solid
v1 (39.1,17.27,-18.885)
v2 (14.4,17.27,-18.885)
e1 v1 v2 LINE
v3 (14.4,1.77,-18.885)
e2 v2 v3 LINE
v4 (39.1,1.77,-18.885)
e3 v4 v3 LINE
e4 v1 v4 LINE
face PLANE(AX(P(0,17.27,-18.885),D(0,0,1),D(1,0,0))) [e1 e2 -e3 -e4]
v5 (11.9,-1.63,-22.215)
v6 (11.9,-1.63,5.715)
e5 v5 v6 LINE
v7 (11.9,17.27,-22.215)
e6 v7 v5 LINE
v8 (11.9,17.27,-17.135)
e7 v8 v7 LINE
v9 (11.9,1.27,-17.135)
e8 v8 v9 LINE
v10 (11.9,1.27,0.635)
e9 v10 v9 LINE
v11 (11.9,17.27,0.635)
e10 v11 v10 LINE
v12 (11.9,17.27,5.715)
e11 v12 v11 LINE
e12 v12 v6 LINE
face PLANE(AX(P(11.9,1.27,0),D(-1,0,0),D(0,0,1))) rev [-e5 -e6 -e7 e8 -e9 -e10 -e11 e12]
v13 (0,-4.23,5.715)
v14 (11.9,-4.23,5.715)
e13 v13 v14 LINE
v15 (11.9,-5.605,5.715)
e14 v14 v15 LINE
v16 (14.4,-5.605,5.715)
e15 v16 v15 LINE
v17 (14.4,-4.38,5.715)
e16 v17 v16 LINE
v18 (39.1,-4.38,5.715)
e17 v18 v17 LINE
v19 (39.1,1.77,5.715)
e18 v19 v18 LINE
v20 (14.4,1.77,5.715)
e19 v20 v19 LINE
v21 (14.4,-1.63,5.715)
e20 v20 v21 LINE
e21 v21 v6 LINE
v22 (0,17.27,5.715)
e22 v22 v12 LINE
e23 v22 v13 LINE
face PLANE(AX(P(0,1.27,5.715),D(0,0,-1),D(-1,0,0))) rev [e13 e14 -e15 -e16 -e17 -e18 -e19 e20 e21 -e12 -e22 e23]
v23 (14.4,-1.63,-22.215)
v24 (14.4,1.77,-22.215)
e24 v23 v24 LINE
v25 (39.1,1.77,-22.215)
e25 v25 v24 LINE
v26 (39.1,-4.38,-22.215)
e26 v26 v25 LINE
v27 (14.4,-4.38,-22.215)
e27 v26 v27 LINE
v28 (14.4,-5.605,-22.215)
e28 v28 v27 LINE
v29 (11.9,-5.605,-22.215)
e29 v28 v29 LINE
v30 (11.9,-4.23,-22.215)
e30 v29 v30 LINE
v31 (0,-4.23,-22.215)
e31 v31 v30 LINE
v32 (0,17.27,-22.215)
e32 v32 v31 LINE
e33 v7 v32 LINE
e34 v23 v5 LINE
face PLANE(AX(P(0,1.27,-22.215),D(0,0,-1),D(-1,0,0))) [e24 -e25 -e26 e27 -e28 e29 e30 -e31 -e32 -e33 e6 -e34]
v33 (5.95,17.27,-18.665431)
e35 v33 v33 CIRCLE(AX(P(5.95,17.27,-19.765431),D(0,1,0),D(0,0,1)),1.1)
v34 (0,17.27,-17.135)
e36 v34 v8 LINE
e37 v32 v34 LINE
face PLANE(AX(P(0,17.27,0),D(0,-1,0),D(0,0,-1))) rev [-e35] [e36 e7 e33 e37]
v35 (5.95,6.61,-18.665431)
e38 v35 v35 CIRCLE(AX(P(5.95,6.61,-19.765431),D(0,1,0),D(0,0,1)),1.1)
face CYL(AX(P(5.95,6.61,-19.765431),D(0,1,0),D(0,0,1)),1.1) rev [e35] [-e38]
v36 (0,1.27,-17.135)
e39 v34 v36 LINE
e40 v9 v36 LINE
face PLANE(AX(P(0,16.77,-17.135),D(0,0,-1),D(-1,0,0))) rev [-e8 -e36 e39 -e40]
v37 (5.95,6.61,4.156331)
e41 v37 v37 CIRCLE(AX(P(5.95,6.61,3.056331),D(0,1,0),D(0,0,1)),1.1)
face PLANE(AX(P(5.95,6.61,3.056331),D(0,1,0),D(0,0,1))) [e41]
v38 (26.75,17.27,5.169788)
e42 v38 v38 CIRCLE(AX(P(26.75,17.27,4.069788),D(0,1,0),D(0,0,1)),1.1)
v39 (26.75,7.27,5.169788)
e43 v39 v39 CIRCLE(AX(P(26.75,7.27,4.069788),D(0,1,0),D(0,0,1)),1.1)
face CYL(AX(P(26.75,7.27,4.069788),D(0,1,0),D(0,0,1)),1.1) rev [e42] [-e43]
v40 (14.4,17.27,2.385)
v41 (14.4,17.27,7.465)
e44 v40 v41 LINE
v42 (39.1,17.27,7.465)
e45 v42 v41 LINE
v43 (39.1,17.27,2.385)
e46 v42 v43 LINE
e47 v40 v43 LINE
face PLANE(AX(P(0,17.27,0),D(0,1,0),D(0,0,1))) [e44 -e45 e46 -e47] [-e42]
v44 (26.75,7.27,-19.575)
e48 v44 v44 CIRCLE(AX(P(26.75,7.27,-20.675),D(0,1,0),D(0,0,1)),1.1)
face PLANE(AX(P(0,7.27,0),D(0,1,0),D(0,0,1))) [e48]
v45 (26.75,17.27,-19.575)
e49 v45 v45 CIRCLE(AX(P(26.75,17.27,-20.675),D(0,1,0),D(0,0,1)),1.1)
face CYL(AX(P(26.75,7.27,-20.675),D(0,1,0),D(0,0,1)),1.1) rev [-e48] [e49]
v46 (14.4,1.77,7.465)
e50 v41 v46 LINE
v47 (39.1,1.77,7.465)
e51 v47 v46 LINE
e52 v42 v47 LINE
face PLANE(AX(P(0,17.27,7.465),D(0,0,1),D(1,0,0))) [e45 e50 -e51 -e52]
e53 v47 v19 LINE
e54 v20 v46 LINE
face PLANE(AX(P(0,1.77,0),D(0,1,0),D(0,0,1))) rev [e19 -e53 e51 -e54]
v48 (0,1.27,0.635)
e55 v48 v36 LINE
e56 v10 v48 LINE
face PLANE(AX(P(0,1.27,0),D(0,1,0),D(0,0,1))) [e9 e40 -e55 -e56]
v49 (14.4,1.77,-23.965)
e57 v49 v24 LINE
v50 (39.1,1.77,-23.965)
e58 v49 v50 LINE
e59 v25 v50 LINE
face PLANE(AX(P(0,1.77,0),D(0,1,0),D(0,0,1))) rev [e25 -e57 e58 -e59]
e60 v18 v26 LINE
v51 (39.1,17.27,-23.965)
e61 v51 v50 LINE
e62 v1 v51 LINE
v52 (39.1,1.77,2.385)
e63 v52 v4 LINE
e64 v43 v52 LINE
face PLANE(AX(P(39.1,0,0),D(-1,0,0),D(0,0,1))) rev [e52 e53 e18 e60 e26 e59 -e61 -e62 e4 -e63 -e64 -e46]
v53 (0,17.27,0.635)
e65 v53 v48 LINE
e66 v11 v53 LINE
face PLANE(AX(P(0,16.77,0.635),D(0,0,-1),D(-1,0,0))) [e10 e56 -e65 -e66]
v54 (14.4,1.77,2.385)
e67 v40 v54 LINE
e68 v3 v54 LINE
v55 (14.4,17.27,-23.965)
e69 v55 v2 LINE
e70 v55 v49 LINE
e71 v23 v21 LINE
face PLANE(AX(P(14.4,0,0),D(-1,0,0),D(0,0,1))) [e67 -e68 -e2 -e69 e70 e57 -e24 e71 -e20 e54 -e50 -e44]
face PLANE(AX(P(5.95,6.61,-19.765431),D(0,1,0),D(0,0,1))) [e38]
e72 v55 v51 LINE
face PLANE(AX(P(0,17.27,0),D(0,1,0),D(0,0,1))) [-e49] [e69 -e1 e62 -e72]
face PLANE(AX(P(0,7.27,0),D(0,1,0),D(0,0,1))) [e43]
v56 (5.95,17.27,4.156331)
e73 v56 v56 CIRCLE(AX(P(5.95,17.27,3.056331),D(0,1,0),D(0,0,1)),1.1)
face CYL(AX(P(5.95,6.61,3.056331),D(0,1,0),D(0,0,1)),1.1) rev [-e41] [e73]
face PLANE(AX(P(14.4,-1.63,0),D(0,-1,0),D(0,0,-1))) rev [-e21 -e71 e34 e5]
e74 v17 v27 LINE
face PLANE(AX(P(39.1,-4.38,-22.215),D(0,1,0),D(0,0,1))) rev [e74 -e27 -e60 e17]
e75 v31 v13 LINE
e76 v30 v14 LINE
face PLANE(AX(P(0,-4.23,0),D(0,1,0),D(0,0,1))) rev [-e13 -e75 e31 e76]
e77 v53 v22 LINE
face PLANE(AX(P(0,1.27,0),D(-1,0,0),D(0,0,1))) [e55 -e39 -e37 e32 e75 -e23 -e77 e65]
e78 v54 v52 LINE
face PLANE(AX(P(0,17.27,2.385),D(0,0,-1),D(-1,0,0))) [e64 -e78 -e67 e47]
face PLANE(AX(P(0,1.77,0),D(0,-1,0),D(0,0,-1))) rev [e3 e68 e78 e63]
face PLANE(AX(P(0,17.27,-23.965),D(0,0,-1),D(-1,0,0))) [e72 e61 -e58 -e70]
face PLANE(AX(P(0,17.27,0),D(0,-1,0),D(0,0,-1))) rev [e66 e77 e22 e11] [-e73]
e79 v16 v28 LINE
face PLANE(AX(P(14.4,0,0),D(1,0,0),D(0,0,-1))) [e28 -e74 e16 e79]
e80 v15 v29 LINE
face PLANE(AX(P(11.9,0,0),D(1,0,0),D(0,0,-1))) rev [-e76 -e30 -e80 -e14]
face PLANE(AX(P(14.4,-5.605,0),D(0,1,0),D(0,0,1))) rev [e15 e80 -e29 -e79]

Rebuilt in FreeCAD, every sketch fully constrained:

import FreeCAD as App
import Part
import Sketcher

V = App.Vector
Q = App.Units.Quantity

doc = App.newDocument("Part")
body = doc.addObject("PartDesign::Body", "Body")

sketch1 = doc.addObject("Sketcher::SketchObject", "Sketch")
body.addObject(sketch1)
sketch1.AttachmentSupport = (doc.XZ_Plane, [""])
sketch1.MapMode = "FlatFace"
sketch1.addGeometry(Part.LineSegment(V(0, -22.215, 0), V(0, 5.715, 0)), False)
sketch1.addGeometry(Part.LineSegment(V(0, 5.715, 0), V(11.9, 5.715, 0)), False)
sketch1.addGeometry(Part.LineSegment(V(11.9, 5.715, 0), V(11.9, -22.215, 0)), False)
sketch1.addGeometry(Part.LineSegment(V(11.9, -22.215, 0), V(0, -22.215, 0)), False)
sketch1.addConstraint(Sketcher.Constraint("Coincident", 0, 2, 1, 1))
sketch1.addConstraint(Sketcher.Constraint("Coincident", 1, 2, 2, 1))
sketch1.addConstraint(Sketcher.Constraint("Coincident", 2, 2, 3, 1))
sketch1.addConstraint(Sketcher.Constraint("Coincident", 3, 2, 0, 1))
sketch1.addConstraint(Sketcher.Constraint("Vertical", 0))
sketch1.addConstraint(Sketcher.Constraint("Horizontal", 1))
sketch1.addConstraint(Sketcher.Constraint("Vertical", 2))
sketch1.addConstraint(Sketcher.Constraint("Horizontal", 3))
sketch1.addConstraint(Sketcher.Constraint("PointOnObject", 0, 2, -2))
sketch1.addConstraint(Sketcher.Constraint("DistanceX", 1, 1, 1, 2, Q("11.9 mm")))
sketch1.addConstraint(Sketcher.Constraint("DistanceY", 0, 1, 0, 2, Q("27.93 mm")))
sketch1.addConstraint(Sketcher.Constraint("DistanceY", -1, 1, 0, 2, Q("5.715 mm")))
pad1 = doc.addObject("PartDesign::Pad", "Pad")
body.addObject(pad1)
pad1.Profile = sketch1
pad1.Length = 1.27
pad1.Reversed = True

sketch2 = doc.addObject("Sketcher::SketchObject", "Sketch001")
body.addObject(sketch2)
sketch2.AttachmentSupport = (doc.XZ_Plane, [""])
sketch2.MapMode = "FlatFace"
sketch2.addGeometry(Part.LineSegment(V(0, 0.635, 0), V(0, 5.715, 0)), False)
sketch2.addGeometry(Part.LineSegment(V(0, 5.715, 0), V(11.9, 5.715, 0)), False)
sketch2.addGeometry(Part.LineSegment(V(11.9, 5.715, 0), V(11.9, 0.635, 0)), False)
sketch2.addGeometry(Part.LineSegment(V(11.9, 0.635, 0), V(0, 0.635, 0)), False)
sketch2.addGeometry(Part.LineSegment(V(0, -22.215, 0), V(0, -17.135, 0)), False)
sketch2.addGeometry(Part.LineSegment(V(0, -17.135, 0), V(11.9, -17.135, 0)), False)
sketch2.addGeometry(Part.LineSegment(V(11.9, -17.135, 0), V(11.9, -22.215, 0)), False)
sketch2.addGeometry(Part.LineSegment(V(11.9, -22.215, 0), V(0, -22.215, 0)), False)
sketch2.addConstraint(Sketcher.Constraint("Coincident", 0, 2, 1, 1))
sketch2.addConstraint(Sketcher.Constraint("Coincident", 1, 2, 2, 1))
sketch2.addConstraint(Sketcher.Constraint("Coincident", 2, 2, 3, 1))
sketch2.addConstraint(Sketcher.Constraint("Coincident", 3, 2, 0, 1))
sketch2.addConstraint(Sketcher.Constraint("Coincident", 4, 2, 5, 1))
sketch2.addConstraint(Sketcher.Constraint("Coincident", 5, 2, 6, 1))
sketch2.addConstraint(Sketcher.Constraint("Coincident", 6, 2, 7, 1))
sketch2.addConstraint(Sketcher.Constraint("Coincident", 7, 2, 4, 1))
sketch2.addConstraint(Sketcher.Constraint("Vertical", 0))
sketch2.addConstraint(Sketcher.Constraint("Horizontal", 1))
sketch2.addConstraint(Sketcher.Constraint("Vertical", 2))
sketch2.addConstraint(Sketcher.Constraint("Horizontal", 3))
sketch2.addConstraint(Sketcher.Constraint("Vertical", 4))
sketch2.addConstraint(Sketcher.Constraint("Horizontal", 5))
sketch2.addConstraint(Sketcher.Constraint("Vertical", 6))
sketch2.addConstraint(Sketcher.Constraint("Horizontal", 7))
sketch2.addConstraint(Sketcher.Constraint("PointOnObject", 0, 2, -2))
sketch2.addConstraint(Sketcher.Constraint("PointOnObject", 4, 2, -2))
sketch2.addConstraint(Sketcher.Constraint("Vertical", 2, 2, 5, 2))
sketch2.addConstraint(Sketcher.Constraint("Equal", 2, 4))
sketch2.addConstraint(Sketcher.Constraint("DistanceX", 1, 1, 1, 2, Q("11.9 mm")))
sketch2.addConstraint(Sketcher.Constraint("DistanceY", 0, 1, 0, 2, Q("5.08 mm")))
sketch2.addConstraint(Sketcher.Constraint("DistanceY", 4, 2, 3, 2, Q("17.77 mm")))
sketch2.addConstraint(Sketcher.Constraint("DistanceY", -1, 1, 0, 2, Q("5.715 mm")))
pad2 = doc.addObject("PartDesign::Pad", "Pad001")
body.addObject(pad2)
pad2.Profile = sketch2
pad2.Length = 16.77
pad2.Reversed = True

sketch3 = doc.addObject("Sketcher::SketchObject", "Sketch002")
body.addObject(sketch3)
sketch3.AttachmentSupport = (doc.XZ_Plane, [""])
sketch3.MapMode = "FlatFace"
sketch3.AttachmentOffset = App.Placement(V(0, 0, -16.77), App.Rotation())
sketch3.addGeometry(Part.Circle(V(5.95, -19.765431, 0), V(0, 0, 1), 1.1), False)
sketch3.addConstraint(Sketcher.Constraint("Diameter", 0, Q("2.2 mm")))
sketch3.addConstraint(Sketcher.Constraint("DistanceX", -1, 1, 0, 3, Q("5.95 mm")))
sketch3.addConstraint(Sketcher.Constraint("DistanceY", 0, 3, -1, 1, Q("19.765431 mm")))
pocket1 = doc.addObject("PartDesign::Pocket", "Pocket")
body.addObject(pocket1)
pocket1.Profile = sketch3
pocket1.Length = 10.16
pocket1.Reversed = True

sketch4 = doc.addObject("Sketcher::SketchObject", "Sketch003")
body.addObject(sketch4)
sketch4.AttachmentSupport = (doc.XZ_Plane, [""])
sketch4.MapMode = "FlatFace"
sketch4.AttachmentOffset = App.Placement(V(0, 0, -16.77), App.Rotation())
sketch4.addGeometry(Part.Circle(V(5.95, 3.056331, 0), V(0, 0, 1), 1.1), False)
sketch4.addConstraint(Sketcher.Constraint("Diameter", 0, Q("2.2 mm")))
sketch4.addConstraint(Sketcher.Constraint("DistanceX", -1, 1, 0, 3, Q("5.95 mm")))
sketch4.addConstraint(Sketcher.Constraint("DistanceY", -1, 1, 0, 3, Q("3.056331 mm")))
pocket2 = doc.addObject("PartDesign::Pocket", "Pocket001")
body.addObject(pocket2)
pocket2.Profile = sketch4
pocket2.Length = 10.16
pocket2.Reversed = True

sketch5 = doc.addObject("Sketcher::SketchObject", "Sketch004")
body.addObject(sketch5)
sketch5.AttachmentSupport = (doc.YZ_Plane, [""])
sketch5.MapMode = "FlatFace"
sketch5.AttachmentOffset = App.Placement(V(0, 0, 11.9), App.Rotation())
sketch5.addGeometry(Part.LineSegment(V(-1.48, -22.215, 0), V(0, -22.215, 0)), False)
sketch5.addGeometry(Part.LineSegment(V(0, -22.215, 0), V(0, 5.715, 0)), False)
sketch5.addGeometry(Part.LineSegment(V(0, 5.715, 0), V(-1.48, 5.715, 0)), False)
sketch5.addGeometry(Part.LineSegment(V(-1.48, 5.715, 0), V(-1.48, -22.215, 0)), False)
sketch5.addConstraint(Sketcher.Constraint("Coincident", 0, 2, 1, 1))
sketch5.addConstraint(Sketcher.Constraint("Coincident", 1, 2, 2, 1))
sketch5.addConstraint(Sketcher.Constraint("Coincident", 2, 2, 3, 1))
sketch5.addConstraint(Sketcher.Constraint("Coincident", 3, 2, 0, 1))
sketch5.addConstraint(Sketcher.Constraint("Horizontal", 0))
sketch5.addConstraint(Sketcher.Constraint("Vertical", 1))
sketch5.addConstraint(Sketcher.Constraint("Horizontal", 2))
sketch5.addConstraint(Sketcher.Constraint("Vertical", 3))
sketch5.addConstraint(Sketcher.Constraint("PointOnObject", 0, 2, -2))
sketch5.addConstraint(Sketcher.Constraint("DistanceX", 0, 1, 0, 2, Q("1.48 mm")))
sketch5.addConstraint(Sketcher.Constraint("DistanceY", 1, 1, 1, 2, Q("27.93 mm")))
sketch5.addConstraint(Sketcher.Constraint("DistanceY", 0, 2, -1, 1, Q("22.215 mm")))
pad3 = doc.addObject("PartDesign::Pad", "Pad002")
body.addObject(pad3)
pad3.Profile = sketch5
pad3.Length = 11.9
pad3.Reversed = True

sketch6 = doc.addObject("Sketcher::SketchObject", "Sketch005")
body.addObject(sketch6)
sketch6.AttachmentSupport = (doc.YZ_Plane, [""])
sketch6.MapMode = "FlatFace"
sketch6.AttachmentOffset = App.Placement(V(0, 0, 11.9), App.Rotation())
sketch6.addGeometry(Part.LineSegment(V(-4.23, -22.215, 0), V(-1.48, -22.215, 0)), False)
sketch6.addGeometry(Part.LineSegment(V(-1.48, -22.215, 0), V(-1.48, 5.715, 0)), False)
sketch6.addGeometry(Part.LineSegment(V(-1.48, 5.715, 0), V(-4.23, 5.715, 0)), False)
sketch6.addGeometry(Part.LineSegment(V(-4.23, 5.715, 0), V(-4.23, -22.215, 0)), False)
sketch6.addConstraint(Sketcher.Constraint("Coincident", 0, 2, 1, 1))
sketch6.addConstraint(Sketcher.Constraint("Coincident", 1, 2, 2, 1))
sketch6.addConstraint(Sketcher.Constraint("Coincident", 2, 2, 3, 1))
sketch6.addConstraint(Sketcher.Constraint("Coincident", 3, 2, 0, 1))
sketch6.addConstraint(Sketcher.Constraint("Horizontal", 0))
sketch6.addConstraint(Sketcher.Constraint("Vertical", 1))
sketch6.addConstraint(Sketcher.Constraint("Horizontal", 2))
sketch6.addConstraint(Sketcher.Constraint("Vertical", 3))
sketch6.addConstraint(Sketcher.Constraint("DistanceX", 0, 1, 0, 2, Q("2.75 mm")))
sketch6.addConstraint(Sketcher.Constraint("DistanceY", 1, 1, 1, 2, Q("27.93 mm")))
sketch6.addConstraint(Sketcher.Constraint("DistanceX", 0, 2, -1, 1, Q("1.48 mm")))
sketch6.addConstraint(Sketcher.Constraint("DistanceY", 0, 2, -1, 1, Q("22.215 mm")))
pad4 = doc.addObject("PartDesign::Pad", "Pad003")
body.addObject(pad4)
pad4.Profile = sketch6
pad4.Length = 11.9
pad4.Reversed = True

sketch7 = doc.addObject("Sketcher::SketchObject", "Sketch006")
body.addObject(sketch7)
sketch7.AttachmentSupport = (doc.YZ_Plane, [""])
sketch7.MapMode = "FlatFace"
sketch7.AttachmentOffset = App.Placement(V(0, 0, 11.9), App.Rotation())
sketch7.addGeometry(Part.LineSegment(V(-2.855, 5.715, 0), V(-5.605, 5.715, 0)), False)
sketch7.addGeometry(Part.LineSegment(V(-5.605, 5.715, 0), V(-5.605, -22.215, 0)), False)
sketch7.addGeometry(Part.LineSegment(V(-5.605, -22.215, 0), V(-2.855, -22.215, 0)), False)
sketch7.addGeometry(Part.LineSegment(V(-2.855, -22.215, 0), V(-2.855, 5.715, 0)), False)
sketch7.addConstraint(Sketcher.Constraint("Coincident", 0, 2, 1, 1))
sketch7.addConstraint(Sketcher.Constraint("Coincident", 1, 2, 2, 1))
sketch7.addConstraint(Sketcher.Constraint("Coincident", 2, 2, 3, 1))
sketch7.addConstraint(Sketcher.Constraint("Coincident", 3, 2, 0, 1))
sketch7.addConstraint(Sketcher.Constraint("Horizontal", 0))
sketch7.addConstraint(Sketcher.Constraint("Vertical", 1))
sketch7.addConstraint(Sketcher.Constraint("Horizontal", 2))
sketch7.addConstraint(Sketcher.Constraint("Vertical", 3))
sketch7.addConstraint(Sketcher.Constraint("DistanceX", 0, 2, 0, 1, Q("2.75 mm")))
sketch7.addConstraint(Sketcher.Constraint("DistanceY", 1, 2, 1, 1, Q("27.93 mm")))
sketch7.addConstraint(Sketcher.Constraint("DistanceX", 0, 2, -1, 1, Q("5.605 mm")))
sketch7.addConstraint(Sketcher.Constraint("DistanceY", -1, 1, 0, 2, Q("5.715 mm")))
pad5 = doc.addObject("PartDesign::Pad", "Pad004")
body.addObject(pad5)
pad5.Profile = sketch7
pad5.Length = 2.5

sketch8 = doc.addObject("Sketcher::SketchObject", "Sketch007")
body.addObject(sketch8)
sketch8.AttachmentSupport = (doc.YZ_Plane, [""])
sketch8.MapMode = "FlatFace"
sketch8.AttachmentOffset = App.Placement(V(0, 0, 11.9), App.Rotation())
sketch8.addGeometry(Part.LineSegment(V(-1.63, -22.215, 0), V(-1.63, 5.715, 0)), False)
sketch8.addGeometry(Part.LineSegment(V(-1.63, 5.715, 0), V(-2.855, 5.715, 0)), False)
sketch8.addGeometry(Part.LineSegment(V(-2.855, 5.715, 0), V(-2.855, -22.215, 0)), False)
sketch8.addGeometry(Part.LineSegment(V(-2.855, -22.215, 0), V(-1.63, -22.215, 0)), False)
sketch8.addConstraint(Sketcher.Constraint("Coincident", 0, 2, 1, 1))
sketch8.addConstraint(Sketcher.Constraint("Coincident", 1, 2, 2, 1))
sketch8.addConstraint(Sketcher.Constraint("Coincident", 2, 2, 3, 1))
sketch8.addConstraint(Sketcher.Constraint("Coincident", 3, 2, 0, 1))
sketch8.addConstraint(Sketcher.Constraint("Vertical", 0))
sketch8.addConstraint(Sketcher.Constraint("Horizontal", 1))
sketch8.addConstraint(Sketcher.Constraint("Vertical", 2))
sketch8.addConstraint(Sketcher.Constraint("Horizontal", 3))
sketch8.addConstraint(Sketcher.Constraint("DistanceY", 0, 1, 0, 2, Q("27.93 mm")))
sketch8.addConstraint(Sketcher.Constraint("DistanceX", 1, 2, 1, 1, Q("1.225 mm")))
sketch8.addConstraint(Sketcher.Constraint("DistanceX", 0, 2, -1, 1, Q("1.63 mm")))
sketch8.addConstraint(Sketcher.Constraint("DistanceY", -1, 1, 0, 2, Q("5.715 mm")))
pad6 = doc.addObject("PartDesign::Pad", "Pad005")
body.addObject(pad6)
pad6.Profile = sketch8
pad6.Length = 2.5

sketch9 = doc.addObject("Sketcher::SketchObject", "Sketch008")
body.addObject(sketch9)
sketch9.AttachmentSupport = (doc.XZ_Plane, [""])
sketch9.MapMode = "FlatFace"
sketch9.AttachmentOffset = App.Placement(V(0, 0, -17.27), App.Rotation())
sketch9.addGeometry(Part.LineSegment(V(0, -22.215, 0), V(0, -17.135, 0)), False)
sketch9.addGeometry(Part.LineSegment(V(0, -17.135, 0), V(11.9, -17.135, 0)), False)
sketch9.addGeometry(Part.LineSegment(V(11.9, -17.135, 0), V(11.9, -22.215, 0)), False)
sketch9.addGeometry(Part.LineSegment(V(11.9, -22.215, 0), V(0, -22.215, 0)), False)
sketch9.addGeometry(Part.Circle(V(5.95, -19.765431, 0), V(0, 0, 1), 1.1), False)
sketch9.addGeometry(Part.LineSegment(V(0, 0.635, 0), V(0, 5.715, 0)), False)
sketch9.addGeometry(Part.LineSegment(V(0, 5.715, 0), V(11.9, 5.715, 0)), False)
sketch9.addGeometry(Part.LineSegment(V(11.9, 5.715, 0), V(11.9, 0.635, 0)), False)
sketch9.addGeometry(Part.LineSegment(V(11.9, 0.635, 0), V(0, 0.635, 0)), False)
sketch9.addGeometry(Part.Circle(V(5.95, 3.056331, 0), V(0, 0, 1), 1.1), False)
sketch9.addConstraint(Sketcher.Constraint("Coincident", 0, 2, 1, 1))
sketch9.addConstraint(Sketcher.Constraint("Coincident", 1, 2, 2, 1))
sketch9.addConstraint(Sketcher.Constraint("Coincident", 2, 2, 3, 1))
sketch9.addConstraint(Sketcher.Constraint("Coincident", 3, 2, 0, 1))
sketch9.addConstraint(Sketcher.Constraint("Coincident", 5, 2, 6, 1))
sketch9.addConstraint(Sketcher.Constraint("Coincident", 6, 2, 7, 1))
sketch9.addConstraint(Sketcher.Constraint("Coincident", 7, 2, 8, 1))
sketch9.addConstraint(Sketcher.Constraint("Coincident", 8, 2, 5, 1))
sketch9.addConstraint(Sketcher.Constraint("Vertical", 0))
sketch9.addConstraint(Sketcher.Constraint("Horizontal", 1))
sketch9.addConstraint(Sketcher.Constraint("Vertical", 2))
sketch9.addConstraint(Sketcher.Constraint("Horizontal", 3))
sketch9.addConstraint(Sketcher.Constraint("Vertical", 5))
sketch9.addConstraint(Sketcher.Constraint("Horizontal", 6))
sketch9.addConstraint(Sketcher.Constraint("Vertical", 7))
sketch9.addConstraint(Sketcher.Constraint("Horizontal", 8))
sketch9.addConstraint(Sketcher.Constraint("Equal", 4, 9))
sketch9.addConstraint(Sketcher.Constraint("PointOnObject", 0, 2, -2))
sketch9.addConstraint(Sketcher.Constraint("PointOnObject", 5, 2, -2))
sketch9.addConstraint(Sketcher.Constraint("Vertical", 4, 3, 9, 3))
sketch9.addConstraint(Sketcher.Constraint("Vertical", 2, 2, 6, 2))
sketch9.addConstraint(Sketcher.Constraint("Equal", 2, 5))
sketch9.addConstraint(Sketcher.Constraint("Diameter", 4, Q("2.2 mm")))
sketch9.addConstraint(Sketcher.Constraint("DistanceX", 1, 1, 1, 2, Q("11.9 mm")))
sketch9.addConstraint(Sketcher.Constraint("DistanceY", 0, 1, 0, 2, Q("5.08 mm")))
sketch9.addConstraint(Sketcher.Constraint("DistanceX", -1, 1, 4, 3, Q("5.95 mm")))
sketch9.addConstraint(Sketcher.Constraint("DistanceY", 0, 2, 5, 2, Q("22.85 mm")))
sketch9.addConstraint(Sketcher.Constraint("DistanceY", 0, 2, -1, 1, Q("17.135 mm")))
sketch9.addConstraint(Sketcher.Constraint("DistanceY", 4, 3, -1, 1, Q("19.765431 mm")))
sketch9.addConstraint(Sketcher.Constraint("DistanceY", -1, 1, 9, 3, Q("3.056331 mm")))
pad7 = doc.addObject("PartDesign::Pad", "Pad006")
body.addObject(pad7)
pad7.Profile = sketch9
pad7.Length = 0.5

sketch10 = doc.addObject("Sketcher::SketchObject", "Sketch009")
body.addObject(sketch10)
sketch10.AttachmentSupport = (doc.YZ_Plane, [""])
sketch10.MapMode = "FlatFace"
sketch10.AttachmentOffset = App.Placement(V(0, 0, 14.4), App.Rotation())
sketch10.addGeometry(Part.LineSegment(V(-4.38, 5.715, 0), V(-4.38, -22.215, 0)), False)
sketch10.addGeometry(Part.LineSegment(V(-4.38, -22.215, 0), V(1.27, -22.215, 0)), False)
sketch10.addGeometry(Part.LineSegment(V(1.27, -22.215, 0), V(1.27, 5.715, 0)), False)
sketch10.addGeometry(Part.LineSegment(V(1.27, 5.715, 0), V(-4.38, 5.715, 0)), False)
sketch10.addConstraint(Sketcher.Constraint("Coincident", 0, 2, 1, 1))
sketch10.addConstraint(Sketcher.Constraint("Coincident", 1, 2, 2, 1))
sketch10.addConstraint(Sketcher.Constraint("Coincident", 2, 2, 3, 1))
sketch10.addConstraint(Sketcher.Constraint("Coincident", 3, 2, 0, 1))
sketch10.addConstraint(Sketcher.Constraint("Vertical", 0))
sketch10.addConstraint(Sketcher.Constraint("Horizontal", 1))
sketch10.addConstraint(Sketcher.Constraint("Vertical", 2))
sketch10.addConstraint(Sketcher.Constraint("Horizontal", 3))
sketch10.addConstraint(Sketcher.Constraint("DistanceX", 1, 1, 1, 2, Q("5.65 mm")))
sketch10.addConstraint(Sketcher.Constraint("DistanceY", 0, 2, 0, 1, Q("27.93 mm")))
sketch10.addConstraint(Sketcher.Constraint("DistanceX", 0, 2, -1, 1, Q("4.38 mm")))
sketch10.addConstraint(Sketcher.Constraint("DistanceY", 0, 2, -1, 1, Q("22.215 mm")))
pad8 = doc.addObject("PartDesign::Pad", "Pad007")
body.addObject(pad8)
pad8.Profile = sketch10
pad8.Length = 24.7

sketch11 = doc.addObject("Sketcher::SketchObject", "Sketch010")
body.addObject(sketch11)
sketch11.AttachmentSupport = (doc.XZ_Plane, [""])
sketch11.MapMode = "FlatFace"
sketch11.AttachmentOffset = App.Placement(V(0, 0, -1.27), App.Rotation())
sketch11.addGeometry(Part.LineSegment(V(14.4, -22.215, 0), V(14.4, 5.715, 0)), False)
sketch11.addGeometry(Part.LineSegment(V(14.4, 5.715, 0), V(39.1, 5.715, 0)), False)
sketch11.addGeometry(Part.LineSegment(V(39.1, 5.715, 0), V(39.1, -22.215, 0)), False)
sketch11.addGeometry(Part.LineSegment(V(39.1, -22.215, 0), V(14.4, -22.215, 0)), False)
sketch11.addConstraint(Sketcher.Constraint("Coincident", 0, 2, 1, 1))
sketch11.addConstraint(Sketcher.Constraint("Coincident", 1, 2, 2, 1))
sketch11.addConstraint(Sketcher.Constraint("Coincident", 2, 2, 3, 1))
sketch11.addConstraint(Sketcher.Constraint("Coincident", 3, 2, 0, 1))
sketch11.addConstraint(Sketcher.Constraint("Vertical", 0))
sketch11.addConstraint(Sketcher.Constraint("Horizontal", 1))
sketch11.addConstraint(Sketcher.Constraint("Vertical", 2))
sketch11.addConstraint(Sketcher.Constraint("Horizontal", 3))
sketch11.addConstraint(Sketcher.Constraint("DistanceX", 1, 1, 1, 2, Q("24.7 mm")))
sketch11.addConstraint(Sketcher.Constraint("DistanceY", 0, 1, 0, 2, Q("27.93 mm")))
sketch11.addConstraint(Sketcher.Constraint("DistanceX", -1, 1, 0, 2, Q("14.4 mm")))
sketch11.addConstraint(Sketcher.Constraint("DistanceY", -1, 1, 0, 2, Q("5.715 mm")))
pad9 = doc.addObject("PartDesign::Pad", "Pad008")
body.addObject(pad9)
pad9.Profile = sketch11
pad9.Length = 0.5
pad9.Reversed = True

sketch12 = doc.addObject("Sketcher::SketchObject", "Sketch011")
body.addObject(sketch12)
sketch12.AttachmentSupport = (doc.XZ_Plane, [""])
sketch12.MapMode = "FlatFace"
sketch12.AttachmentOffset = App.Placement(V(0, 0, -1.77), App.Rotation())
sketch12.addGeometry(Part.LineSegment(V(14.4, -18.885, 0), V(39.1, -18.885, 0)), False)
sketch12.addGeometry(Part.LineSegment(V(39.1, -18.885, 0), V(39.1, -23.965, 0)), False)
sketch12.addGeometry(Part.LineSegment(V(39.1, -23.965, 0), V(14.4, -23.965, 0)), False)
sketch12.addGeometry(Part.LineSegment(V(14.4, -23.965, 0), V(14.4, -18.885, 0)), False)
sketch12.addGeometry(Part.LineSegment(V(39.1, 7.465, 0), V(39.1, 2.385, 0)), False)
sketch12.addGeometry(Part.LineSegment(V(39.1, 2.385, 0), V(14.4, 2.385, 0)), False)
sketch12.addGeometry(Part.LineSegment(V(14.4, 2.385, 0), V(14.4, 7.465, 0)), False)
sketch12.addGeometry(Part.LineSegment(V(14.4, 7.465, 0), V(39.1, 7.465, 0)), False)
sketch12.addConstraint(Sketcher.Constraint("Coincident", 0, 2, 1, 1))
sketch12.addConstraint(Sketcher.Constraint("Coincident", 1, 2, 2, 1))
sketch12.addConstraint(Sketcher.Constraint("Coincident", 2, 2, 3, 1))
sketch12.addConstraint(Sketcher.Constraint("Coincident", 3, 2, 0, 1))
sketch12.addConstraint(Sketcher.Constraint("Coincident", 4, 2, 5, 1))
sketch12.addConstraint(Sketcher.Constraint("Coincident", 5, 2, 6, 1))
sketch12.addConstraint(Sketcher.Constraint("Coincident", 6, 2, 7, 1))
sketch12.addConstraint(Sketcher.Constraint("Coincident", 7, 2, 4, 1))
sketch12.addConstraint(Sketcher.Constraint("Horizontal", 0))
sketch12.addConstraint(Sketcher.Constraint("Vertical", 1))
sketch12.addConstraint(Sketcher.Constraint("Horizontal", 2))
sketch12.addConstraint(Sketcher.Constraint("Vertical", 3))
sketch12.addConstraint(Sketcher.Constraint("Vertical", 4))
sketch12.addConstraint(Sketcher.Constraint("Horizontal", 5))
sketch12.addConstraint(Sketcher.Constraint("Vertical", 6))
sketch12.addConstraint(Sketcher.Constraint("Horizontal", 7))
sketch12.addConstraint(Sketcher.Constraint("Vertical", 1, 2, 4, 2))
sketch12.addConstraint(Sketcher.Constraint("Vertical", 3, 2, 5, 2))
sketch12.addConstraint(Sketcher.Constraint("Equal", 3, 4))
sketch12.addConstraint(Sketcher.Constraint("DistanceX", 0, 1, 0, 2, Q("24.7 mm")))
sketch12.addConstraint(Sketcher.Constraint("DistanceY", 1, 2, 1, 1, Q("5.08 mm")))
sketch12.addConstraint(Sketcher.Constraint("DistanceX", -1, 1, 0, 2, Q("39.1 mm")))
sketch12.addConstraint(Sketcher.Constraint("DistanceY", 0, 2, 4, 2, Q("21.27 mm")))
sketch12.addConstraint(Sketcher.Constraint("DistanceY", 0, 2, -1, 1, Q("18.885 mm")))
pad10 = doc.addObject("PartDesign::Pad", "Pad009")
body.addObject(pad10)
pad10.Profile = sketch12
pad10.Length = 15.5
pad10.Reversed = True

sketch13 = doc.addObject("Sketcher::SketchObject", "Sketch012")
body.addObject(sketch13)
sketch13.AttachmentSupport = (doc.XZ_Plane, [""])
sketch13.MapMode = "FlatFace"
sketch13.AttachmentOffset = App.Placement(V(0, 0, -17.27), App.Rotation())
sketch13.addGeometry(Part.Circle(V(26.75, -20.675, 0), V(0, 0, 1), 1.1), False)
sketch13.addGeometry(Part.Circle(V(26.75, 4.069788, 0), V(0, 0, 1), 1.1), False)
sketch13.addConstraint(Sketcher.Constraint("Equal", 0, 1))
sketch13.addConstraint(Sketcher.Constraint("Vertical", 0, 3, 1, 3))
sketch13.addConstraint(Sketcher.Constraint("Diameter", 0, Q("2.2 mm")))
sketch13.addConstraint(Sketcher.Constraint("DistanceX", -1, 1, 0, 3, Q("26.75 mm")))
sketch13.addConstraint(Sketcher.Constraint("DistanceY", 0, 3, -1, 1, Q("20.675 mm")))
sketch13.addConstraint(Sketcher.Constraint("DistanceY", -1, 1, 1, 3, Q("4.069788 mm")))
pocket3 = doc.addObject("PartDesign::Pocket", "Pocket002")
body.addObject(pocket3)
pocket3.Profile = sketch13
pocket3.Length = 10
pocket3.Reversed = True

doc.recompute()
